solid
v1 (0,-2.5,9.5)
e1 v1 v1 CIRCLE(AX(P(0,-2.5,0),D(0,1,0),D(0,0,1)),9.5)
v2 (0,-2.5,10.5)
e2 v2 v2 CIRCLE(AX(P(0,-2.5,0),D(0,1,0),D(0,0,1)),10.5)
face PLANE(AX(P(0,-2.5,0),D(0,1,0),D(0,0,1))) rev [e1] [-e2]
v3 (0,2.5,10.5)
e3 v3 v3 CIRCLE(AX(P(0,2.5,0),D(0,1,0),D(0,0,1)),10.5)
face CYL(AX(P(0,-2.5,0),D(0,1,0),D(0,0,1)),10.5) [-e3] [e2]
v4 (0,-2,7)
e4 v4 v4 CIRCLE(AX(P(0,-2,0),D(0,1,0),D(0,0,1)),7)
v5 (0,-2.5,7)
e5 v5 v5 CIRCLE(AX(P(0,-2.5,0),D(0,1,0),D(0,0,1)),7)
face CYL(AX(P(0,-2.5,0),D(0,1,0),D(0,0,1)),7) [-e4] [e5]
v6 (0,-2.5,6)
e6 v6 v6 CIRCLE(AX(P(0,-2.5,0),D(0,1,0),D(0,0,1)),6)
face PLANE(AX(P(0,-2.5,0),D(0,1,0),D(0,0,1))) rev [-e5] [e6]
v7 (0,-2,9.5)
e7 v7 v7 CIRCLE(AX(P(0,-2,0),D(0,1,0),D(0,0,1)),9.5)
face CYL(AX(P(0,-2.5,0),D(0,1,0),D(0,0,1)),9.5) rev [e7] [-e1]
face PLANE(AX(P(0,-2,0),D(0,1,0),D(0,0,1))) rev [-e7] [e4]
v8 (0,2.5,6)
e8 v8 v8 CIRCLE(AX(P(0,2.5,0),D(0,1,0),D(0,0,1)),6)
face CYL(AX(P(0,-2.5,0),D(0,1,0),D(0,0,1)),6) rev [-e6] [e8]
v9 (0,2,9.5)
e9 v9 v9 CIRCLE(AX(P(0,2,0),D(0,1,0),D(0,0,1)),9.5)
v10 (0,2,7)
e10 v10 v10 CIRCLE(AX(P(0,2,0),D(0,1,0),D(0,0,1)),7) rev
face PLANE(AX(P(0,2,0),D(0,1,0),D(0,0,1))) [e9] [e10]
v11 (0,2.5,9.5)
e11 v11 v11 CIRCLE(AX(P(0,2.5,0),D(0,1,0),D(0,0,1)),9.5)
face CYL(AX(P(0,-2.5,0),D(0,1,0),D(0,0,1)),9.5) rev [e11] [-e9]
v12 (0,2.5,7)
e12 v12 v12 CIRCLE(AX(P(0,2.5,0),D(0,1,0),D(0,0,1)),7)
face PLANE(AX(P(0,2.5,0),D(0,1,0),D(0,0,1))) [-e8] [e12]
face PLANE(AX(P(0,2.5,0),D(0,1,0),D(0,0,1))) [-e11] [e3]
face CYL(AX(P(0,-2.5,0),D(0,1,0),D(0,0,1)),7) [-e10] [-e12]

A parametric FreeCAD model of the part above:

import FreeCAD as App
import Part
import Sketcher
from FreeCAD import Vector

doc = App.newDocument("Part")
body = doc.addObject("PartDesign::Body", "Body")

sketch1 = doc.addObject("Sketcher::SketchObject", "Sketch")
body.addObject(sketch1)
sketch1.AttachmentSupport = (doc.XZ_Plane, [""])
sketch1.MapMode = "FlatFace"
sketch1.addGeometry(Part.Circle(Vector(0, 0, 0), Vector(0, 0, 1), 7), False)
sketch1.addGeometry(Part.Circle(Vector(0, 0, 0), Vector(0, 0, 1), 6), False)
sketch1.addConstraint(Sketcher.Constraint("Coincident", 0, 3, -1, 1))
sketch1.addConstraint(Sketcher.Constraint("Coincident", 1, 3, -1, 1))
sketch1.addConstraint(Sketcher.Constraint("Diameter", 0, 14.0))
sketch1.addConstraint(Sketcher.Constraint("Diameter", 1, 12.0))
pad1 = doc.addObject("PartDesign::Pad", "Pad")
body.addObject(pad1)
pad1.Profile = sketch1
pad1.Type = "TwoLengths"
pad1.Length = 2.5
pad1.Length2 = 2.5
pad1.Reversed = True
body2 = doc.addObject("PartDesign::Body", "Body001")

sketch2 = doc.addObject("Sketcher::SketchObject", "Sketch001")
body2.addObject(sketch2)
sketch2.AttachmentSupport = (doc.getObject("XZ_Plane001"), [""])
sketch2.MapMode = "FlatFace"
sketch2.addGeometry(Part.Circle(Vector(0, 0, 0), Vector(0, 0, 1), 10.5), False)
sketch2.addGeometry(Part.Circle(Vector(0, 0, 0), Vector(0, 0, 1), 9.5), False)
sketch2.addConstraint(Sketcher.Constraint("Coincident", 0, 3, -1, 1))
sketch2.addConstraint(Sketcher.Constraint("Coincident", 1, 3, -1, 1))
sketch2.addConstraint(Sketcher.Constraint("Diameter", 0, 21.0))
sketch2.addConstraint(Sketcher.Constraint("Diameter", 1, 19.0))
pad2 = doc.addObject("PartDesign::Pad", "Pad001")
body2.addObject(pad2)
pad2.Profile = sketch2
pad2.Type = "TwoLengths"
pad2.Length = 2.5
pad2.Length2 = 2.5
pad2.Reversed = True
body.AllowCompound = True
doc.recompute()

boolean = doc.addObject("PartDesign::Boolean", "Boolean")
body.addObject(boolean)
boolean.Type = "Fuse"
boolean.addObjects([body2])

sketch3 = doc.addObject("Sketcher::SketchObject", "Sketch002")
body.addObject(sketch3)
sketch3.AttachmentSupport = (doc.XZ_Plane, [""])
sketch3.MapMode = "FlatFace"
sketch3.addGeometry(Part.Circle(Vector(0, 0, 0), Vector(0, 0, 1), 9.5), False)
sketch3.addGeometry(Part.Circle(Vector(0, 0, 0), Vector(0, 0, 1), 7), False)
sketch3.addConstraint(Sketcher.Constraint("Coincident", 0, 3, -1, 1))
sketch3.addConstraint(Sketcher.Constraint("Coincident", 1, 3, -1, 1))
sketch3.addConstraint(Sketcher.Constraint("Diameter", 0, 19.0))
sketch3.addConstraint(Sketcher.Constraint("Diameter", 1, 14.0))
pad3 = doc.addObject("PartDesign::Pad", "Pad002")
body.addObject(pad3)
pad3.Profile = sketch3
pad3.Type = "TwoLengths"
pad3.Length = 2
pad3.Length2 = 2
pad3.Reversed = True

doc.recompute()
